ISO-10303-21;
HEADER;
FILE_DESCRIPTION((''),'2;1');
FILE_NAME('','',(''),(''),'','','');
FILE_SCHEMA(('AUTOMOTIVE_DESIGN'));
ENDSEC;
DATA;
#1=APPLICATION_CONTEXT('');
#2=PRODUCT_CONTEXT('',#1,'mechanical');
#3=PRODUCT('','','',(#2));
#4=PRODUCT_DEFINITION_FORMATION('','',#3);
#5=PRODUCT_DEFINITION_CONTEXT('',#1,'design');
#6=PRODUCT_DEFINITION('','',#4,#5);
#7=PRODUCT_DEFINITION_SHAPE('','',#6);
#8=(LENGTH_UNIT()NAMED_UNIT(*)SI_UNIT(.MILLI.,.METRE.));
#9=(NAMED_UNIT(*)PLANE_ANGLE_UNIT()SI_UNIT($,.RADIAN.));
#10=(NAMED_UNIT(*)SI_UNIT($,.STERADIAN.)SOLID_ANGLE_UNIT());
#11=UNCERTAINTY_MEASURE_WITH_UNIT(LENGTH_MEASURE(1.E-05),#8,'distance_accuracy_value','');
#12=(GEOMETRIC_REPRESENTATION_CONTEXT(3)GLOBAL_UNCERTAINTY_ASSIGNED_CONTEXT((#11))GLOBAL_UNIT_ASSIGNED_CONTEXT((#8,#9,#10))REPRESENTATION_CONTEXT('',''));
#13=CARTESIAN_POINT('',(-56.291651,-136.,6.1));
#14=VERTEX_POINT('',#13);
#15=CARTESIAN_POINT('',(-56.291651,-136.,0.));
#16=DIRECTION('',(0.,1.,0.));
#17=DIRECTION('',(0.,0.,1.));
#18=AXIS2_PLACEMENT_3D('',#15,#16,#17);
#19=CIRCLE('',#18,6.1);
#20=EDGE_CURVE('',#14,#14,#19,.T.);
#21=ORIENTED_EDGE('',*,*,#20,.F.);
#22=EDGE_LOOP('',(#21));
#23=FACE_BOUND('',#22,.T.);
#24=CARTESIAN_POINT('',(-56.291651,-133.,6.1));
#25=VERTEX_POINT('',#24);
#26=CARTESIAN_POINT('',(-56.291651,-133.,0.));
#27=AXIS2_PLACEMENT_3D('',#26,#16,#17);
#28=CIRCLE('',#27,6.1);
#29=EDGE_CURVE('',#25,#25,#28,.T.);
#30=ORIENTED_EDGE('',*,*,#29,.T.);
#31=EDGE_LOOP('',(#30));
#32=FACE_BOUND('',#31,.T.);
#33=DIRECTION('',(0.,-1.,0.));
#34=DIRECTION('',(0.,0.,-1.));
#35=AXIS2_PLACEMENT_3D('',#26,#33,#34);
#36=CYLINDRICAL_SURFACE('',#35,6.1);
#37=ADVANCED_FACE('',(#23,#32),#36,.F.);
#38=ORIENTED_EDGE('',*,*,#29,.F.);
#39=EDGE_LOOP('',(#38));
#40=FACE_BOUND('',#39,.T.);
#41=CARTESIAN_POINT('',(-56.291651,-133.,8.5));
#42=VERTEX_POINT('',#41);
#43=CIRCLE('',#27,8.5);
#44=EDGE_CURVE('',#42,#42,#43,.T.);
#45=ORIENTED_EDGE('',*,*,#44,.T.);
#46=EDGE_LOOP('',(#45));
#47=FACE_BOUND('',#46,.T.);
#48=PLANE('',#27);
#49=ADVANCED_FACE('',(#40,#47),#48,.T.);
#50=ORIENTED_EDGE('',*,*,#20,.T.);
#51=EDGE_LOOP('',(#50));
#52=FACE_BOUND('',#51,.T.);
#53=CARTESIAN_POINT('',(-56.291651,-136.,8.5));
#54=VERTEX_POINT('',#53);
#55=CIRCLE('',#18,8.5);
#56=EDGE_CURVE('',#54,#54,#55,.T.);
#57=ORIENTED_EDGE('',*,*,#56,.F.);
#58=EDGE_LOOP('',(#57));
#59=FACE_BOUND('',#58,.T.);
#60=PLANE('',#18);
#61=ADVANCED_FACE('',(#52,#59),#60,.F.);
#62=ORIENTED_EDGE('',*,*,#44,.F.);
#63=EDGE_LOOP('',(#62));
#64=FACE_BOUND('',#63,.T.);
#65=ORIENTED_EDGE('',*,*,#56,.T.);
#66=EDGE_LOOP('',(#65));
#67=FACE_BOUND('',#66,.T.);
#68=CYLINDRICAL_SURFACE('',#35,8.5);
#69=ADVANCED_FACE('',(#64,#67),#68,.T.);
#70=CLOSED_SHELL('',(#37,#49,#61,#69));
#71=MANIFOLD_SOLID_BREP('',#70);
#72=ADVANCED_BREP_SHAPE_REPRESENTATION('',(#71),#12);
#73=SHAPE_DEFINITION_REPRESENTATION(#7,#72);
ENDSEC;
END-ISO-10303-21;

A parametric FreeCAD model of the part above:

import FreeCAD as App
import Part
import Sketcher
from FreeCAD import Vector

doc = App.newDocument("Part")
params = doc.addObject("Spreadsheet::Sheet", "Params")
for row, (alias, value) in enumerate([
    ("sketch1_diameter", "17 mm"),
    ("sketch1_diameter2", "12.2 mm"),
    ("pad1_length", "3 mm"),
], start=1):
    params.set(f"A{row}", alias)
    params.set(f"B{row}", "=" + value)
    params.setAlias(f"B{row}", alias)

body = doc.addObject("PartDesign::Body", "Body")

sketch1 = body.newObject("Sketcher::SketchObject", "Sketch")
sketch1.AttachmentSupport = (doc.getObject("XZ_Plane"), [""])
sketch1.MapMode = "FlatFace"
sketch1.AttachmentOffset = App.Placement(Vector(0, 0, 136), App.Rotation())
sketch1.addGeometry(Part.Circle(Vector(-56.291651, 0, 0), Vector(0, 0, 1), 8.5), False)
sketch1.addGeometry(Part.Circle(Vector(-56.291651, 0, 0), Vector(0, 0, 1), 6.1), False)
sketch1.addConstraint(Sketcher.Constraint("Coincident", 1, 3, 0, 3))
sketch1.addConstraint(Sketcher.Constraint("PointOnObject", 0, 3, -1))
sketch1.addConstraint(Sketcher.Constraint("Diameter", 0, 17.0))
sketch1.addConstraint(Sketcher.Constraint("Diameter", 1, 12.2))
sketch1.addConstraint(Sketcher.Constraint("DistanceX", 0, 3, -1, 1, 56.291651))
sketch1.setExpression("Constraints[2]", "Params.sketch1_diameter")
sketch1.setExpression("Constraints[3]", "Params.sketch1_diameter2")
pad1 = body.newObject("PartDesign::Pad", "Pad")
pad1.Profile = sketch1
pad1.setExpression("Length", "Params.pad1_length")
pad1.Reversed = True

doc.recompute()
